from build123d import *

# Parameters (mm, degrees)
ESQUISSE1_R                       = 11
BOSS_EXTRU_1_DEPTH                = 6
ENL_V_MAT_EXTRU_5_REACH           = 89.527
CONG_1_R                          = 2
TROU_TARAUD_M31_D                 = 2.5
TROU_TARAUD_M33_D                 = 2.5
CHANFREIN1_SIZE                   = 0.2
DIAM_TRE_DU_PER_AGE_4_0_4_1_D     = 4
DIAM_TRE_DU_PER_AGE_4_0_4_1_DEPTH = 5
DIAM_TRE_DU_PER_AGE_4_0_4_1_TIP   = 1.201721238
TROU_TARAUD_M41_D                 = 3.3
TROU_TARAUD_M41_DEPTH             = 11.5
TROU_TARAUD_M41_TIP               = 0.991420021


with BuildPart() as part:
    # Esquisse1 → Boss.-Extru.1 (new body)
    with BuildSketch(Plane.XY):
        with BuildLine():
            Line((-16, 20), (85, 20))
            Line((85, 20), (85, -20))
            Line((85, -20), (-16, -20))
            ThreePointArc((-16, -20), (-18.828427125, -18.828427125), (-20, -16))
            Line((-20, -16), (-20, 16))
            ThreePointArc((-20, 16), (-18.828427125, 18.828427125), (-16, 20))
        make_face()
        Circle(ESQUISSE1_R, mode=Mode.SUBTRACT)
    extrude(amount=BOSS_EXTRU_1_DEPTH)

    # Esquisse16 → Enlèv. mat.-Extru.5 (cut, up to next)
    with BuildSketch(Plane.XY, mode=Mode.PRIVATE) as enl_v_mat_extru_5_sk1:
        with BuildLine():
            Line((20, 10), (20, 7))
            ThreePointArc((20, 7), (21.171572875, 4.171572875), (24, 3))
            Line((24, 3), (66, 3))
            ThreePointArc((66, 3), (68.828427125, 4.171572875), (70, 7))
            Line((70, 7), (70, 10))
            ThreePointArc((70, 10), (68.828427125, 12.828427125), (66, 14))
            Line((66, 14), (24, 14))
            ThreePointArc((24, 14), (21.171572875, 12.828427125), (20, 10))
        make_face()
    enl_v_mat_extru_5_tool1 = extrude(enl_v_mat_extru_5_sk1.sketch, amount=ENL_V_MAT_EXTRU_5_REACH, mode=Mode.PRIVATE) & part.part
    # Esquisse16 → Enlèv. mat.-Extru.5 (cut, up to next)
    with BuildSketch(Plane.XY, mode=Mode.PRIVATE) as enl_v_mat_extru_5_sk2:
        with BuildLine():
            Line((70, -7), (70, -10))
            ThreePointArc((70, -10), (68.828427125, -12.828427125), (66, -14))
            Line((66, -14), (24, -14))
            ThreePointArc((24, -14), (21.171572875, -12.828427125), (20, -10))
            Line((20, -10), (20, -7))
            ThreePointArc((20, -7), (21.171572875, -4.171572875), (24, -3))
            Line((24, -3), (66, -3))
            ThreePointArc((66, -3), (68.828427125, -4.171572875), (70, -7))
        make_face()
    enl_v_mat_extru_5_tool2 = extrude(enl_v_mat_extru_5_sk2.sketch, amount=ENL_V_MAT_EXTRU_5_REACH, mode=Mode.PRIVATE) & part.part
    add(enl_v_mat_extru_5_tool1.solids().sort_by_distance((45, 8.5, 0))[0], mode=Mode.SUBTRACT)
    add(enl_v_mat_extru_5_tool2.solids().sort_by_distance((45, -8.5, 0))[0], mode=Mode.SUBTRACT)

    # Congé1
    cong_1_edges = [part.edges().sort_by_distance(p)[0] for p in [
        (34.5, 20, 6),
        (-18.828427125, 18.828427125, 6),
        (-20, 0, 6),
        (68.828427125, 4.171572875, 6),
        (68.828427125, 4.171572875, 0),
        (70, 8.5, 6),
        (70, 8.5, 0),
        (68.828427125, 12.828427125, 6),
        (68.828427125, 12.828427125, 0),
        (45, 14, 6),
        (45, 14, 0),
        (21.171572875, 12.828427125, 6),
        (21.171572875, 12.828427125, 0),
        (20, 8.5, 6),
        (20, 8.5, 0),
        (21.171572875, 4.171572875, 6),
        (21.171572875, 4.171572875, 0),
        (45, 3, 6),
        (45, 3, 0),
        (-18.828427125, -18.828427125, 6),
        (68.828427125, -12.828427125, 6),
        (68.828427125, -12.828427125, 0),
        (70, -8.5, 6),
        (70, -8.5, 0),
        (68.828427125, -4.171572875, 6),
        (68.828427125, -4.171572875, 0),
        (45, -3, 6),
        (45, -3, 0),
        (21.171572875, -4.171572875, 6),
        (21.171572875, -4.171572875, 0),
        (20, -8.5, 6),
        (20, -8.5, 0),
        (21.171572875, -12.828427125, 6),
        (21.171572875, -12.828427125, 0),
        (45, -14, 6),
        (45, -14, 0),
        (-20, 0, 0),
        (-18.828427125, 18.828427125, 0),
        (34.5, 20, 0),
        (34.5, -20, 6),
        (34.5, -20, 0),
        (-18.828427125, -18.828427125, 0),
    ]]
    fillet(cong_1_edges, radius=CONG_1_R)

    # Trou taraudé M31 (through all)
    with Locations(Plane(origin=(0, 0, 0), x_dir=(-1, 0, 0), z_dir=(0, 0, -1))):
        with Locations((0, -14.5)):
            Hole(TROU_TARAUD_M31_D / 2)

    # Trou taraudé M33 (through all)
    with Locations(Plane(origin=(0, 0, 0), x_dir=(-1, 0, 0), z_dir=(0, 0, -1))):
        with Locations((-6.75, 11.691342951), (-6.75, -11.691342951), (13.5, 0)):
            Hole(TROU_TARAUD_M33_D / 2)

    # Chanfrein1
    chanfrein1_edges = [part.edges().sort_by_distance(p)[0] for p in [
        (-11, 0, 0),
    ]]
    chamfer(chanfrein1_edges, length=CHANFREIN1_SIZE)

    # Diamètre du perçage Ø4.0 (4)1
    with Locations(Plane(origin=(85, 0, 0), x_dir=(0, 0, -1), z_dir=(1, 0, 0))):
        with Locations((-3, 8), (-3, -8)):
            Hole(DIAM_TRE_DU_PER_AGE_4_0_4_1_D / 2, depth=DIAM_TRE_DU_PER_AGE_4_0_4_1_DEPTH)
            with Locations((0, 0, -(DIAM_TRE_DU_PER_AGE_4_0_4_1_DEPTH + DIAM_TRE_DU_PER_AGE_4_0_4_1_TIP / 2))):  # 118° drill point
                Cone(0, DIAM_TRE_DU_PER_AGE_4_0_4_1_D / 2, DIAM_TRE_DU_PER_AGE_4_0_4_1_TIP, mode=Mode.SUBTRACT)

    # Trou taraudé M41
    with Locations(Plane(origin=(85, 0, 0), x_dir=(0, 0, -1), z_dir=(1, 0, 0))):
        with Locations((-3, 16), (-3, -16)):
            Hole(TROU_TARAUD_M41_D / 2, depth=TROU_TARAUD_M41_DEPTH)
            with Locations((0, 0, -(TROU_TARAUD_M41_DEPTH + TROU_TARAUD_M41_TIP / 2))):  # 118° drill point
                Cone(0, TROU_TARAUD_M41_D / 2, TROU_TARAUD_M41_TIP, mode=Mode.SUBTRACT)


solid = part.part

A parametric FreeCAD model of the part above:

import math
import FreeCAD as App
import Part
import Sketcher

V = App.Vector


def edges_at(feature, points):
    """Names of the edges that pass closest to the given points."""
    edges = feature.Shape.Edges
    near = lambda p: min(range(len(edges)), key=lambda i: edges[i].distToShape(Part.Vertex(*p))[0])
    return sorted({f"Edge{near(p) + 1}" for p in points})

doc = App.newDocument("Part")
params = doc.addObject("Spreadsheet::Sheet", "Params")
for row, (alias, value) in enumerate([
    ("sketch1_diameter", "22 mm"),
    ("sketch1_radius", "4 mm"),
    ("sketch1_width", "101 mm"),
    ("sketch1_height", "32 mm"),
    ("pad1_length", "6 mm"),
    ("sketch2_radius", "4 mm"),
    ("sketch2_width", "42 mm"),
    ("sketch2_height", "3 mm"),
    ("sketch3_radius", "4 mm"),
    ("sketch3_width", "42 mm"),
    ("sketch3_height", "3 mm"),
    ("fillet_radius", "2 mm"),
    ("sketch4_diameter", "2.5 mm"),
    ("hole_diameter", "2.5 mm"),
    ("sketch5_diameter", "2.5 mm"),
    ("hole2_diameter", "2.5 mm"),
    ("chamfer_size", "0.2 mm"),
    ("sketch6_diameter", "4 mm"),
    ("hole3_diameter", "4 mm"),
    ("hole3_depth", "5 mm"),
    ("sketch7_diameter", "3.3 mm"),
    ("hole4_diameter", "3.3 mm"),
    ("hole4_depth", "11.5 mm"),
], start=1):
    params.set(f"A{row}", alias)
    params.set(f"B{row}", "=" + value)
    params.setAlias(f"B{row}", alias)

body = doc.addObject("PartDesign::Body", "Body")

sketch1 = body.newObject("Sketcher::SketchObject", "Sketch")
sketch1.AttachmentSupport = (doc.getObject("XY_Plane"), [""])
sketch1.MapMode = "FlatFace"
sketch1.addGeometry(Part.LineSegment(V(85, 20, 0), V(-16, 20, 0)), False)
sketch1.addGeometry(Part.ArcOfCircle(Part.Circle(V(-16, 16, 0), V(0, 0, 1), 4), math.radians(90), math.radians(180)), False)
sketch1.addGeometry(Part.LineSegment(V(-20, 16, 0), V(-20, -16, 0)), False)
sketch1.addGeometry(Part.ArcOfCircle(Part.Circle(V(-16, -16, 0), V(0, 0, 1), 4), math.radians(180), math.radians(270)), False)
sketch1.addGeometry(Part.LineSegment(V(-16, -20, 0), V(85, -20, 0)), False)
sketch1.addGeometry(Part.LineSegment(V(85, -20, 0), V(85, 20, 0)), False)
sketch1.addGeometry(Part.Circle(V(0, 0, 0), V(0, 0, 1), 11), False)
sketch1.addConstraint(Sketcher.Constraint("Tangent", 0, 2, 1, 1))
sketch1.addConstraint(Sketcher.Constraint("Tangent", 1, 2, 2, 1))
sketch1.addConstraint(Sketcher.Constraint("Tangent", 2, 2, 3, 1))
sketch1.addConstraint(Sketcher.Constraint("Tangent", 3, 2, 4, 1))
sketch1.addConstraint(Sketcher.Constraint("Coincident", 4, 2, 5, 1))
sketch1.addConstraint(Sketcher.Constraint("Coincident", 5, 2, 0, 1))
sketch1.addConstraint(Sketcher.Constraint("Horizontal", 0))
sketch1.addConstraint(Sketcher.Constraint("Vertical", 2))
sketch1.addConstraint(Sketcher.Constraint("Horizontal", 4))
sketch1.addConstraint(Sketcher.Constraint("Vertical", 5))
sketch1.addConstraint(Sketcher.Constraint("Coincident", 6, 3, -1, 1))
sketch1.addConstraint(Sketcher.Constraint("Equal", 1, 3))
sketch1.addConstraint(Sketcher.Constraint("Diameter", 6, 22.0))
sketch1.addConstraint(Sketcher.Constraint("Radius", 1, 4.0))
sketch1.addConstraint(Sketcher.Constraint("DistanceX", 0, 2, 0, 1, 101.0))
sketch1.addConstraint(Sketcher.Constraint("DistanceY", 2, 2, 2, 1, 32.0))
sketch1.addConstraint(Sketcher.Constraint("DistanceX", 1, 3, -1, 1, 16.0))
sketch1.addConstraint(Sketcher.Constraint("DistanceY", -1, 1, 1, 3, 16.0))
sketch1.setExpression("Constraints[12]", "Params.sketch1_diameter")
sketch1.setExpression("Constraints[13]", "Params.sketch1_radius")
sketch1.setExpression("Constraints[14]", "Params.sketch1_width")
sketch1.setExpression("Constraints[15]", "Params.sketch1_height")
pad1 = body.newObject("PartDesign::Pad", "Pad")
pad1.Profile = sketch1
pad1.setExpression("Length", "Params.pad1_length")

sketch2 = body.newObject("Sketcher::SketchObject", "Sketch001")
sketch2.AttachmentSupport = (doc.getObject("XY_Plane"), [""])
sketch2.MapMode = "FlatFace"
sketch2.addGeometry(Part.LineSegment(V(20, 10, 0), V(20, 7, 0)), False)
sketch2.addGeometry(Part.ArcOfCircle(Part.Circle(V(24, 7, 0), V(0, 0, 1), 4), math.radians(180), math.radians(270)), False)
sketch2.addGeometry(Part.LineSegment(V(24, 3, 0), V(66, 3, 0)), False)
sketch2.addGeometry(Part.ArcOfCircle(Part.Circle(V(66, 7, 0), V(0, 0, 1), 4), math.radians(-90), math.radians(0)), False)
sketch2.addGeometry(Part.LineSegment(V(70, 7, 0), V(70, 10, 0)), False)
sketch2.addGeometry(Part.ArcOfCircle(Part.Circle(V(66, 10, 0), V(0, 0, 1), 4), math.radians(0), math.radians(90)), False)
sketch2.addGeometry(Part.LineSegment(V(66, 14, 0), V(24, 14, 0)), False)
sketch2.addGeometry(Part.ArcOfCircle(Part.Circle(V(24, 10, 0), V(0, 0, 1), 4), math.radians(90), math.radians(180)), False)
sketch2.addConstraint(Sketcher.Constraint("Tangent", 0, 2, 1, 1))
sketch2.addConstraint(Sketcher.Constraint("Tangent", 1, 2, 2, 1))
sketch2.addConstraint(Sketcher.Constraint("Tangent", 2, 2, 3, 1))
sketch2.addConstraint(Sketcher.Constraint("Tangent", 3, 2, 4, 1))
sketch2.addConstraint(Sketcher.Constraint("Tangent", 4, 2, 5, 1))
sketch2.addConstraint(Sketcher.Constraint("Tangent", 5, 2, 6, 1))
sketch2.addConstraint(Sketcher.Constraint("Tangent", 6, 2, 7, 1))
sketch2.addConstraint(Sketcher.Constraint("Tangent", 7, 2, 0, 1))
sketch2.addConstraint(Sketcher.Constraint("Vertical", 0))
sketch2.addConstraint(Sketcher.Constraint("Horizontal", 2))
sketch2.addConstraint(Sketcher.Constraint("Vertical", 4))
sketch2.addConstraint(Sketcher.Constraint("Horizontal", 6))
sketch2.addConstraint(Sketcher.Constraint("Equal", 1, 3))
sketch2.addConstraint(Sketcher.Constraint("Equal", 3, 5))
sketch2.addConstraint(Sketcher.Constraint("Equal", 5, 7))
sketch2.addConstraint(Sketcher.Constraint("Radius", 1, 4.0))
sketch2.addConstraint(Sketcher.Constraint("DistanceX", 2, 1, 2, 2, 42.0))
sketch2.addConstraint(Sketcher.Constraint("DistanceY", 0, 2, 0, 1, 3.0))
sketch2.addConstraint(Sketcher.Constraint("DistanceX", -1, 1, 1, 3, 24.0))
sketch2.addConstraint(Sketcher.Constraint("DistanceY", -1, 1, 1, 3, 7.0))
sketch2.setExpression("Constraints[15]", "Params.sketch2_radius")
sketch2.setExpression("Constraints[16]", "Params.sketch2_width")
sketch2.setExpression("Constraints[17]", "Params.sketch2_height")
pocket1 = body.newObject("PartDesign::Pocket", "Pocket")
pocket1.Profile = sketch2
pocket1.Type = "UpToFirst"
pocket1.Reversed = True

sketch3 = body.newObject("Sketcher::SketchObject", "Sketch002")
sketch3.AttachmentSupport = (doc.getObject("XY_Plane"), [""])
sketch3.MapMode = "FlatFace"
sketch3.addGeometry(Part.LineSegment(V(70, -10, 0), V(70, -7, 0)), False)
sketch3.addGeometry(Part.ArcOfCircle(Part.Circle(V(66, -7, 0), V(0, 0, 1), 4), math.radians(0), math.radians(90)), False)
sketch3.addGeometry(Part.LineSegment(V(66, -3, 0), V(24, -3, 0)), False)
sketch3.addGeometry(Part.ArcOfCircle(Part.Circle(V(24, -7, 0), V(0, 0, 1), 4), math.radians(90), math.radians(180)), False)
sketch3.addGeometry(Part.LineSegment(V(20, -7, 0), V(20, -10, 0)), False)
sketch3.addGeometry(Part.ArcOfCircle(Part.Circle(V(24, -10, 0), V(0, 0, 1), 4), math.radians(180), math.radians(270)), False)
sketch3.addGeometry(Part.LineSegment(V(24, -14, 0), V(66, -14, 0)), False)
sketch3.addGeometry(Part.ArcOfCircle(Part.Circle(V(66, -10, 0), V(0, 0, 1), 4), math.radians(-90), math.radians(0)), False)
sketch3.addConstraint(Sketcher.Constraint("Tangent", 0, 2, 1, 1))
sketch3.addConstraint(Sketcher.Constraint("Tangent", 1, 2, 2, 1))
sketch3.addConstraint(Sketcher.Constraint("Tangent", 2, 2, 3, 1))
sketch3.addConstraint(Sketcher.Constraint("Tangent", 3, 2, 4, 1))
sketch3.addConstraint(Sketcher.Constraint("Tangent", 4, 2, 5, 1))
sketch3.addConstraint(Sketcher.Constraint("Tangent", 5, 2, 6, 1))
sketch3.addConstraint(Sketcher.Constraint("Tangent", 6, 2, 7, 1))
sketch3.addConstraint(Sketcher.Constraint("Tangent", 7, 2, 0, 1))
sketch3.addConstraint(Sketcher.Constraint("Vertical", 0))
sketch3.addConstraint(Sketcher.Constraint("Horizontal", 2))
sketch3.addConstraint(Sketcher.Constraint("Vertical", 4))
sketch3.addConstraint(Sketcher.Constraint("Horizontal", 6))
sketch3.addConstraint(Sketcher.Constraint("Equal", 1, 3))
sketch3.addConstraint(Sketcher.Constraint("Equal", 3, 5))
sketch3.addConstraint(Sketcher.Constraint("Equal", 5, 7))
sketch3.addConstraint(Sketcher.Constraint("Radius", 1, 4.0))
sketch3.addConstraint(Sketcher.Constraint("DistanceX", 2, 2, 2, 1, 42.0))
sketch3.addConstraint(Sketcher.Constraint("DistanceY", 0, 1, 0, 2, 3.0))
sketch3.addConstraint(Sketcher.Constraint("DistanceX", -1, 1, 1, 3, 66.0))
sketch3.addConstraint(Sketcher.Constraint("DistanceY", 1, 3, -1, 1, 7.0))
sketch3.setExpression("Constraints[15]", "Params.sketch3_radius")
sketch3.setExpression("Constraints[16]", "Params.sketch3_width")
sketch3.setExpression("Constraints[17]", "Params.sketch3_height")
pocket2 = body.newObject("PartDesign::Pocket", "Pocket001")
pocket2.Profile = sketch3
pocket2.Type = "UpToFirst"
pocket2.Reversed = True
doc.recompute()

fillet = body.newObject("PartDesign::Fillet", "Fillet")
fillet.Base = (pocket2, edges_at(pocket2, [
    (34.5, 20, 6),
    (-18.828, 18.828, 6),
    (-20, 0, 6),
    (68.828, 4.172, 6),
    (68.828, 4.172, 0),
    (70, 8.5, 6),
    (70, 8.5, 0),
    (68.828, 12.828, 6),
    (68.828, 12.828, 0),
    (45, 14, 6),
    (45, 14, 0),
    (21.172, 12.828, 6),
    (21.172, 12.828, 0),
    (20, 8.5, 6),
    (20, 8.5, 0),
    (21.172, 4.172, 6),
    (21.172, 4.172, 0),
    (45, 3, 6),
    (45, 3, 0),
    (-18.828, -18.828, 6),
    (68.828, -12.828, 6),
    (68.828, -12.828, 0),
    (70, -8.5, 6),
    (70, -8.5, 0),
    (68.828, -4.172, 6),
    (68.828, -4.172, 0),
    (45, -3, 6),
    (45, -3, 0),
    (21.172, -4.172, 6),
    (21.172, -4.172, 0),
    (20, -8.5, 6),
    (20, -8.5, 0),
    (21.172, -12.828, 6),
    (21.172, -12.828, 0),
    (45, -14, 6),
    (45, -14, 0),
    (-20, 0, 0),
    (-18.828, 18.828, 0),
    (34.5, 20, 0),
    (34.5, -20, 6),
    (34.5, -20, 0),
    (-18.828, -18.828, 0),
]))
fillet.setExpression("Radius", "Params.fillet_radius")

sketch4 = body.newObject("Sketcher::SketchObject", "Sketch003")
sketch4.AttachmentSupport = (doc.getObject("XY_Plane"), [""])
sketch4.MapMode = "FlatFace"
sketch4.addGeometry(Part.Circle(V(0, -14.5, 0), V(0, 0, 1), 1.25), False)
sketch4.addConstraint(Sketcher.Constraint("PointOnObject", 0, 3, -2))
sketch4.addConstraint(Sketcher.Constraint("Diameter", 0, 2.5))
sketch4.addConstraint(Sketcher.Constraint("DistanceY", 0, 3, -1, 1, 14.5))
sketch4.setExpression("Constraints[1]", "Params.sketch4_diameter")
doc.recompute()
hole = body.newObject("PartDesign::Hole", "Hole")
hole.Profile = sketch4
hole.ThreadType = "None"
hole.setExpression("Diameter", "Params.hole_diameter")
hole.DepthType = "ThroughAll"
hole.Reversed = True

sketch5 = body.newObject("Sketcher::SketchObject", "Sketch004")
sketch5.AttachmentSupport = (doc.getObject("XY_Plane"), [""])
sketch5.MapMode = "FlatFace"
sketch5.addGeometry(Part.Circle(V(6.75, 11.691343, 0), V(0, 0, 1), 1.25), False)
sketch5.addGeometry(Part.Circle(V(6.75, -11.691343, 0), V(0, 0, 1), 1.25), False)
sketch5.addGeometry(Part.Circle(V(-13.5, 0, 0), V(0, 0, 1), 1.25), False)
sketch5.addConstraint(Sketcher.Constraint("Equal", 0, 1))
sketch5.addConstraint(Sketcher.Constraint("Equal", 1, 2))
sketch5.addConstraint(Sketcher.Constraint("Symmetric", 0, 3, 1, 3, -1))
sketch5.addConstraint(Sketcher.Constraint("PointOnObject", 2, 3, -1))
sketch5.addConstraint(Sketcher.Constraint("Diameter", 0, 2.5))
sketch5.addConstraint(Sketcher.Constraint("DistanceX", 2, 3, -1, 1, 13.5))
sketch5.addConstraint(Sketcher.Constraint("DistanceX", -1, 1, 0, 3, 6.75))
sketch5.addConstraint(Sketcher.Constraint("DistanceY", -1, 1, 0, 3, 11.691343))
sketch5.setExpression("Constraints[4]", "Params.sketch5_diameter")
doc.recompute()
hole2 = body.newObject("PartDesign::Hole", "Hole001")
hole2.Profile = sketch5
hole2.ThreadType = "None"
hole2.setExpression("Diameter", "Params.hole2_diameter")
hole2.DepthType = "ThroughAll"
hole2.Reversed = True
doc.recompute()

chamfer = body.newObject("PartDesign::Chamfer", "Chamfer")
chamfer.Base = (hole2, edges_at(hole2, [(-11, 0, 0)]))
chamfer.setExpression("Size", "Params.chamfer_size")

sketch6 = body.newObject("Sketcher::SketchObject", "Sketch005")
sketch6.AttachmentSupport = (doc.getObject("YZ_Plane"), [""])
sketch6.MapMode = "FlatFace"
sketch6.AttachmentOffset = App.Placement(V(0, 0, 85), App.Rotation())
sketch6.addGeometry(Part.Circle(V(8, 3, 0), V(0, 0, 1), 2), False)
sketch6.addGeometry(Part.Circle(V(-8, 3, 0), V(0, 0, 1), 2), False)
sketch6.addConstraint(Sketcher.Constraint("Equal", 0, 1))
sketch6.addConstraint(Sketcher.Constraint("Symmetric", 0, 3, 1, 3, -2))
sketch6.addConstraint(Sketcher.Constraint("Diameter", 0, 4.0))
sketch6.addConstraint(Sketcher.Constraint("DistanceX", -1, 1, 0, 3, 8.0))
sketch6.addConstraint(Sketcher.Constraint("DistanceY", -1, 1, 0, 3, 3.0))
sketch6.setExpression("Constraints[2]", "Params.sketch6_diameter")
doc.recompute()
hole3 = body.newObject("PartDesign::Hole", "Hole002")
hole3.Profile = sketch6
hole3.ThreadType = "None"
hole3.setExpression("Diameter", "Params.hole3_diameter")
hole3.DepthType = "Dimension"
hole3.setExpression("Depth", "Params.hole3_depth")
hole3.DrillPoint = "Angled"
hole3.DrillPointAngle = 118

sketch7 = body.newObject("Sketcher::SketchObject", "Sketch006")
sketch7.AttachmentSupport = (doc.getObject("YZ_Plane"), [""])
sketch7.MapMode = "FlatFace"
sketch7.AttachmentOffset = App.Placement(V(0, 0, 85), App.Rotation())
sketch7.addGeometry(Part.Circle(V(16, 3, 0), V(0, 0, 1), 1.65), False)
sketch7.addGeometry(Part.Circle(V(-16, 3, 0), V(0, 0, 1), 1.65), False)
sketch7.addConstraint(Sketcher.Constraint("Equal", 0, 1))
sketch7.addConstraint(Sketcher.Constraint("Symmetric", 0, 3, 1, 3, -2))
sketch7.addConstraint(Sketcher.Constraint("Diameter", 0, 3.3))
sketch7.addConstraint(Sketcher.Constraint("DistanceX", -1, 1, 0, 3, 16.0))
sketch7.addConstraint(Sketcher.Constraint("DistanceY", -1, 1, 0, 3, 3.0))
sketch7.setExpression("Constraints[2]", "Params.sketch7_diameter")
doc.recompute()
hole4 = body.newObject("PartDesign::Hole", "Hole003")
hole4.Profile = sketch7
hole4.ThreadType = "None"
hole4.setExpression("Diameter", "Params.hole4_diameter")
hole4.DepthType = "Dimension"
hole4.setExpression("Depth", "Params.hole4_depth")
hole4.DrillPoint = "Angled"
hole4.DrillPointAngle = 118

doc.recompute()
